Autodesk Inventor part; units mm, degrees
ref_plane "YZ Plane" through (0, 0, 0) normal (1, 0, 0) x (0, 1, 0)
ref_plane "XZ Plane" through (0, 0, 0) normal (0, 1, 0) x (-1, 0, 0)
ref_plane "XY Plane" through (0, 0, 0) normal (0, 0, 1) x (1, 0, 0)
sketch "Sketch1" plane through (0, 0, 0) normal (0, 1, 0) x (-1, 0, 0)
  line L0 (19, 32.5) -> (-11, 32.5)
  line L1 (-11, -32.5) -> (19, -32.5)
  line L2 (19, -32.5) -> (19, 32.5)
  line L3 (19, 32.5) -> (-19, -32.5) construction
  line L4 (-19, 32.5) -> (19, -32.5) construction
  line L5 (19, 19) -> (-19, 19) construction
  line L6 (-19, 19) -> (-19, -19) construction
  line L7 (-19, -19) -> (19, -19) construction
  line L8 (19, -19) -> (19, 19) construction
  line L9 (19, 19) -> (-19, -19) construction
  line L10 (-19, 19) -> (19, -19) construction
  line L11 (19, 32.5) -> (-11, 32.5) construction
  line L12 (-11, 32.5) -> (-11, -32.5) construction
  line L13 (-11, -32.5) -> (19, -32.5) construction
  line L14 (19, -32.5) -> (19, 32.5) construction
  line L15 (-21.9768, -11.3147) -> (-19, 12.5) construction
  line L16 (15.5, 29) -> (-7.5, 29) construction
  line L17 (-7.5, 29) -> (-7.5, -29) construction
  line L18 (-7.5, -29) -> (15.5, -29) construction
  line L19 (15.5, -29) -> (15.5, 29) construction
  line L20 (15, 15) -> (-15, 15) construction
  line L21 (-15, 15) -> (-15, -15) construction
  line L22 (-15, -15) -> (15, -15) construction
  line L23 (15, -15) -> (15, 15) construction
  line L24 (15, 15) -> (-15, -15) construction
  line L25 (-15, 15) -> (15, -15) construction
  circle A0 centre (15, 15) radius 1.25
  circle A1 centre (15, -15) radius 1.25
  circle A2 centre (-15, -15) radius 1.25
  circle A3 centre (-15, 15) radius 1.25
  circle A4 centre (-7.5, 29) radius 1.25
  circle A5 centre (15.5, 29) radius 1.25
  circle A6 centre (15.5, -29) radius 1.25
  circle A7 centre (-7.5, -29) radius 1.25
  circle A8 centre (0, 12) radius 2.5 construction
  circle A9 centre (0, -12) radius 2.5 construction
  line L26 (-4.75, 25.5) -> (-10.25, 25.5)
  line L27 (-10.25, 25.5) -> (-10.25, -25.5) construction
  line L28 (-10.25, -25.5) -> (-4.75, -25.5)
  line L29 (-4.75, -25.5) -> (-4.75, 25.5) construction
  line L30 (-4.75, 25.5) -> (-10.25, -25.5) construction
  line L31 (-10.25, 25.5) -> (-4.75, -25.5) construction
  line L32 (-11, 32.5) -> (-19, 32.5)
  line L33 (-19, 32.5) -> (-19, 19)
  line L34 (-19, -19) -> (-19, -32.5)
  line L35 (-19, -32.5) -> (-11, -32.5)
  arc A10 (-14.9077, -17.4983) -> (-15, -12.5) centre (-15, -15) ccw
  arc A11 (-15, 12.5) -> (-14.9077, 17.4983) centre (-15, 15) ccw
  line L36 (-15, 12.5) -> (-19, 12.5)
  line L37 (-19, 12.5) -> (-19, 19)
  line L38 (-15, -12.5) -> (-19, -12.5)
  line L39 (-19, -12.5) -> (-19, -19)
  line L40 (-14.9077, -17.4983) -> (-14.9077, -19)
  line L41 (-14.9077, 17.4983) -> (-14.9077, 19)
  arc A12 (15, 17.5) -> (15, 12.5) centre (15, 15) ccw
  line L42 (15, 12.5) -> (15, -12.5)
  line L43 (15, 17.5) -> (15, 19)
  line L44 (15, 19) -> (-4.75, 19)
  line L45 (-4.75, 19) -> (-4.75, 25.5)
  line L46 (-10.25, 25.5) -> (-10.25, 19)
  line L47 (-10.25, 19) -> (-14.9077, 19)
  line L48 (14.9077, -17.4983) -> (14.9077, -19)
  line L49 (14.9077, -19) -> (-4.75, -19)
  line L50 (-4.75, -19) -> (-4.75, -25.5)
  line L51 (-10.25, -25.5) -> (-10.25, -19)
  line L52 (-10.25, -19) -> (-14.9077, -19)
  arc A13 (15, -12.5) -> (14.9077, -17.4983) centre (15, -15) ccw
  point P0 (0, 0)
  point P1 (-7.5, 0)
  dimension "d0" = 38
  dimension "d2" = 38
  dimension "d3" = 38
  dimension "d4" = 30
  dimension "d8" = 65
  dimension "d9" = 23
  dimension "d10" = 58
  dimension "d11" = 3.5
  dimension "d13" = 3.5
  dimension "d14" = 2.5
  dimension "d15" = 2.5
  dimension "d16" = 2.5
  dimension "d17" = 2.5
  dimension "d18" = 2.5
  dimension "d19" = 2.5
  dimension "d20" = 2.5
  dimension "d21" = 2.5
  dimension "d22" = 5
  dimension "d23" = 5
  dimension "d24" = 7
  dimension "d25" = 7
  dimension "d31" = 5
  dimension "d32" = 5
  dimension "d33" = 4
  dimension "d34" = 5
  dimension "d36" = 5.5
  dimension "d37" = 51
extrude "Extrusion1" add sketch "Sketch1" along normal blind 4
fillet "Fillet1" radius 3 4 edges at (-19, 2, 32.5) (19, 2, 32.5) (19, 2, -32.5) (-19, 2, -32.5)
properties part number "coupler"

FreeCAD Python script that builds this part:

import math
import FreeCAD as App
import Part
import Sketcher
from FreeCAD import Vector
Q = App.Units.Quantity


def edges_at(feature, points):
    """Names of the edges that pass closest to the given points."""
    edges = feature.Shape.Edges
    near = lambda p: min(range(len(edges)), key=lambda i: edges[i].distToShape(Part.Vertex(*p))[0])
    return sorted({f"Edge{near(p) + 1}" for p in points})

doc = App.newDocument("Part")
body = doc.addObject("PartDesign::Body", "Body")

sketch1 = body.newObject("Sketcher::SketchObject", "Sketch")
sketch1.AttachmentSupport = (doc.getObject("XZ_Plane"), [""])
sketch1.MapMode = "FlatFace"
sketch1.addGeometry(Part.LineSegment(Vector(-19, -32.5, 0), Vector(-19, 32.5, 0)), False)
sketch1.addGeometry(Part.LineSegment(Vector(-19, 32.5, 0), Vector(19, 32.5, 0)), False)
sketch1.addGeometry(Part.LineSegment(Vector(19, 32.5, 0), Vector(19, 12.5, 0)), False)
sketch1.addGeometry(Part.LineSegment(Vector(19, 12.5, 0), Vector(15, 12.5, 0)), False)
sketch1.addGeometry(Part.ArcOfCircle(Part.Circle(Vector(15, 15, 0), Vector(0, 0, 1), 2.5), math.radians(92), math.radians(270)), False)
sketch1.addGeometry(Part.LineSegment(Vector(14.9, 17.5, 0), Vector(14.9, 19, 0)), False)
sketch1.addGeometry(Part.LineSegment(Vector(14.9, 19, 0), Vector(10.2, 19, 0)), False)
sketch1.addGeometry(Part.LineSegment(Vector(10.2, 19, 0), Vector(10.2, 25.5, 0)), False)
sketch1.addGeometry(Part.LineSegment(Vector(10.2, 25.5, 0), Vector(4.8, 25.5, 0)), False)
sketch1.addGeometry(Part.LineSegment(Vector(4.8, 25.5, 0), Vector(4.8, 19, 0)), False)
sketch1.addGeometry(Part.LineSegment(Vector(4.8, 19, 0), Vector(-15, 19, 0)), False)
sketch1.addGeometry(Part.LineSegment(Vector(-15, 19, 0), Vector(-15, 17.5, 0)), False)
sketch1.addGeometry(Part.ArcOfCircle(Part.Circle(Vector(-15, 15, 0), Vector(0, 0, 1), 2.5), math.radians(-90), math.radians(90)), False)
sketch1.addGeometry(Part.LineSegment(Vector(-15, 12.5, 0), Vector(-15, -12.5, 0)), False)
sketch1.addGeometry(Part.ArcOfCircle(Part.Circle(Vector(-15, -15, 0), Vector(0, 0, 1), 2.5), math.radians(-88), math.radians(90)), False)
sketch1.addGeometry(Part.LineSegment(Vector(-14.9, -17.5, 0), Vector(-14.9, -19, 0)), False)
sketch1.addGeometry(Part.LineSegment(Vector(-14.9, -19, 0), Vector(4.8, -19, 0)), False)
sketch1.addGeometry(Part.LineSegment(Vector(4.8, -19, 0), Vector(4.8, -25.5, 0)), False)
sketch1.addGeometry(Part.LineSegment(Vector(4.8, -25.5, 0), Vector(10.2, -25.5, 0)), False)
sketch1.addGeometry(Part.LineSegment(Vector(10.2, -25.5, 0), Vector(10.2, -19, 0)), False)
sketch1.addGeometry(Part.LineSegment(Vector(10.2, -19, 0), Vector(14.9, -19, 0)), False)
sketch1.addGeometry(Part.LineSegment(Vector(14.9, -19, 0), Vector(14.9, -17.5, 0)), False)
sketch1.addGeometry(Part.ArcOfCircle(Part.Circle(Vector(15, -15, 0), Vector(0, 0, 1), 2.5), math.radians(90), math.radians(268)), False)
sketch1.addGeometry(Part.LineSegment(Vector(15, -12.5, 0), Vector(19, -12.5, 0)), False)
sketch1.addGeometry(Part.LineSegment(Vector(19, -12.5, 0), Vector(19, -32.5, 0)), False)
sketch1.addGeometry(Part.LineSegment(Vector(19, -32.5, 0), Vector(-19, -32.5, 0)), False)
sketch1.addGeometry(Part.Circle(Vector(7.5, -29, 0), Vector(0, 0, 1), 1.2), False)
sketch1.addGeometry(Part.Circle(Vector(15, -15, 0), Vector(0, 0, 1), 1.2), False)
sketch1.addGeometry(Part.Circle(Vector(-15.5, -29, 0), Vector(0, 0, 1), 1.2), False)
sketch1.addGeometry(Part.Circle(Vector(-15, -15, 0), Vector(0, 0, 1), 1.2), False)
sketch1.addGeometry(Part.Circle(Vector(15, 15, 0), Vector(0, 0, 1), 1.2), False)
sketch1.addGeometry(Part.Circle(Vector(7.5, 29, 0), Vector(0, 0, 1), 1.2), False)
sketch1.addGeometry(Part.Circle(Vector(-15, 15, 0), Vector(0, 0, 1), 1.2), False)
sketch1.addGeometry(Part.Circle(Vector(-15.5, 29, 0), Vector(0, 0, 1), 1.2), False)
sketch1.addConstraint(Sketcher.Constraint("Coincident", 0, 2, 1, 1))
sketch1.addConstraint(Sketcher.Constraint("Coincident", 1, 2, 2, 1))
sketch1.addConstraint(Sketcher.Constraint("Coincident", 2, 2, 3, 1))
sketch1.addConstraint(Sketcher.Constraint("Tangent", 3, 2, 4, 2))
sketch1.addConstraint(Sketcher.Constraint("Coincident", 4, 1, 5, 1))
sketch1.addConstraint(Sketcher.Constraint("Coincident", 5, 2, 6, 1))
sketch1.addConstraint(Sketcher.Constraint("Coincident", 6, 2, 7, 1))
sketch1.addConstraint(Sketcher.Constraint("Coincident", 7, 2, 8, 1))
sketch1.addConstraint(Sketcher.Constraint("Coincident", 8, 2, 9, 1))
sketch1.addConstraint(Sketcher.Constraint("Coincident", 9, 2, 10, 1))
sketch1.addConstraint(Sketcher.Constraint("Coincident", 10, 2, 11, 1))
sketch1.addConstraint(Sketcher.Constraint("Coincident", 11, 2, 12, 2))
sketch1.addConstraint(Sketcher.Constraint("Coincident", 12, 1, 13, 1))
sketch1.addConstraint(Sketcher.Constraint("Coincident", 13, 2, 14, 2))
sketch1.addConstraint(Sketcher.Constraint("Coincident", 14, 1, 15, 1))
sketch1.addConstraint(Sketcher.Constraint("Coincident", 15, 2, 16, 1))
sketch1.addConstraint(Sketcher.Constraint("Coincident", 16, 2, 17, 1))
sketch1.addConstraint(Sketcher.Constraint("Coincident", 17, 2, 18, 1))
sketch1.addConstraint(Sketcher.Constraint("Coincident", 18, 2, 19, 1))
sketch1.addConstraint(Sketcher.Constraint("Coincident", 19, 2, 20, 1))
sketch1.addConstraint(Sketcher.Constraint("Coincident", 20, 2, 21, 1))
sketch1.addConstraint(Sketcher.Constraint("Coincident", 21, 2, 22, 2))
sketch1.addConstraint(Sketcher.Constraint("Tangent", 22, 1, 23, 1))
sketch1.addConstraint(Sketcher.Constraint("Coincident", 23, 2, 24, 1))
sketch1.addConstraint(Sketcher.Constraint("Coincident", 24, 2, 25, 1))
sketch1.addConstraint(Sketcher.Constraint("Coincident", 25, 2, 0, 1))
sketch1.addConstraint(Sketcher.Constraint("Vertical", 0))
sketch1.addConstraint(Sketcher.Constraint("Horizontal", 1))
sketch1.addConstraint(Sketcher.Constraint("Vertical", 2))
sketch1.addConstraint(Sketcher.Constraint("Horizontal", 3))
sketch1.addConstraint(Sketcher.Constraint("Vertical", 5))
sketch1.addConstraint(Sketcher.Constraint("Horizontal", 6))
sketch1.addConstraint(Sketcher.Constraint("Vertical", 7))
sketch1.addConstraint(Sketcher.Constraint("Horizontal", 8))
sketch1.addConstraint(Sketcher.Constraint("Vertical", 9))
sketch1.addConstraint(Sketcher.Constraint("Horizontal", 10))
sketch1.addConstraint(Sketcher.Constraint("Vertical", 11))
sketch1.addConstraint(Sketcher.Constraint("Vertical", 13))
sketch1.addConstraint(Sketcher.Constraint("Vertical", 15))
sketch1.addConstraint(Sketcher.Constraint("Horizontal", 16))
sketch1.addConstraint(Sketcher.Constraint("Vertical", 17))
sketch1.addConstraint(Sketcher.Constraint("Horizontal", 18))
sketch1.addConstraint(Sketcher.Constraint("Vertical", 19))
sketch1.addConstraint(Sketcher.Constraint("Horizontal", 20))
sketch1.addConstraint(Sketcher.Constraint("Vertical", 21))
sketch1.addConstraint(Sketcher.Constraint("Horizontal", 23))
sketch1.addConstraint(Sketcher.Constraint("Vertical", 24))
sketch1.addConstraint(Sketcher.Constraint("Horizontal", 25))
sketch1.addConstraint(Sketcher.Constraint("Coincident", 27, 3, 22, 3))
sketch1.addConstraint(Sketcher.Constraint("Coincident", 29, 3, 14, 3))
sketch1.addConstraint(Sketcher.Constraint("Coincident", 30, 3, 4, 3))
sketch1.addConstraint(Sketcher.Constraint("Coincident", 32, 3, 12, 3))
sketch1.addConstraint(Sketcher.Constraint("Equal", 4, 12))
sketch1.addConstraint(Sketcher.Constraint("Equal", 12, 14))
sketch1.addConstraint(Sketcher.Constraint("Equal", 14, 22))
sketch1.addConstraint(Sketcher.Constraint("Equal", 26, 27))
sketch1.addConstraint(Sketcher.Constraint("Equal", 27, 28))
sketch1.addConstraint(Sketcher.Constraint("Equal", 28, 29))
sketch1.addConstraint(Sketcher.Constraint("Equal", 29, 30))
sketch1.addConstraint(Sketcher.Constraint("Equal", 30, 31))
sketch1.addConstraint(Sketcher.Constraint("Equal", 31, 32))
sketch1.addConstraint(Sketcher.Constraint("Equal", 32, 33))
sketch1.addConstraint(Sketcher.Constraint("Symmetric", 4, 3, 14, 3, -1, 1))
sketch1.addConstraint(Sketcher.Constraint("Symmetric", 12, 3, 22, 3, -1, 1))
sketch1.addConstraint(Sketcher.Constraint("Symmetric", 5, 2, 15, 2, -1, 1))
sketch1.addConstraint(Sketcher.Constraint("Symmetric", 0, 2, 24, 2, -1, 1))
sketch1.addConstraint(Sketcher.Constraint("Symmetric", 4, 3, 12, 3, -2))
sketch1.addConstraint(Sketcher.Constraint("Symmetric", 15, 2, 20, 2, -2))
sketch1.addConstraint(Sketcher.Constraint("Symmetric", 26, 3, 31, 3, -1))
sketch1.addConstraint(Sketcher.Constraint("Symmetric", 28, 3, 33, 3, -1))
sketch1.addConstraint(Sketcher.Constraint("Symmetric", 9, 2, 16, 2, -1))
sketch1.addConstraint(Sketcher.Constraint("Symmetric", 7, 2, 18, 2, -1))
sketch1.addConstraint(Sketcher.Constraint("Horizontal", 26, 3, 28, 3))
sketch1.addConstraint(Sketcher.Constraint("Vertical", 32, 3, 10, 2))
sketch1.addConstraint(Sketcher.Constraint("Vertical", 11, 2, 12, 1))
sketch1.addConstraint(Sketcher.Constraint("Vertical", 2, 2, 23, 2))
sketch1.addConstraint(Sketcher.Constraint("Diameter", 26, Q("2.5 mm")))
sketch1.addConstraint(Sketcher.Constraint("Radius", 4, Q("2.5 mm")))
sketch1.addConstraint(Sketcher.Constraint("DistanceX", 1, 1, 1, 2, Q("38 mm")))
sketch1.addConstraint(Sketcher.Constraint("DistanceX", 3, 2, 3, 1, Q("4 mm")))
sketch1.addConstraint(Sketcher.Constraint("DistanceY", 0, 1, 0, 2, Q("65 mm")))
sketch1.addConstraint(Sketcher.Constraint("DistanceX", 8, 2, 8, 1, Q("5.5 mm")))
sketch1.addConstraint(Sketcher.Constraint("DistanceY", 14, 3, 12, 3, Q("30 mm")))
sketch1.addConstraint(Sketcher.Constraint("DistanceX", 28, 3, 26, 3, Q("23 mm")))
sketch1.addConstraint(Sketcher.Constraint("DistanceY", 4, 3, 5, 2, Q("4 mm")))
sketch1.addConstraint(Sketcher.Constraint("DistanceY", 7, 2, 1, 2, Q("7 mm")))
sketch1.addConstraint(Sketcher.Constraint("DistanceX", 0, 2, 33, 3, Q("3.5 mm")))
sketch1.addConstraint(Sketcher.Constraint("DistanceY", 33, 3, 0, 2, Q("3.5 mm")))
sketch1.addConstraint(Sketcher.Constraint("DistanceX", 10, 2, 10, 1, Q("19.75 mm")))
sketch1.addConstraint(Sketcher.Constraint("DistanceX", 6, 2, 6, 1, Q("4.6577 mm")))
pad1 = body.newObject("PartDesign::Pad", "Pad")
pad1.Profile = sketch1
pad1.Length = 4
pad1.Reversed = True
doc.recompute()

fillet = body.newObject("PartDesign::Fillet", "Fillet")
fillet.Base = (pad1, edges_at(pad1, [
    (-19, 2, 32.5),
    (19, 2, 32.5),
    (19, 2, -32.5),
    (-19, 2, -32.5),
]))
fillet.Radius = 3

doc.recompute()
